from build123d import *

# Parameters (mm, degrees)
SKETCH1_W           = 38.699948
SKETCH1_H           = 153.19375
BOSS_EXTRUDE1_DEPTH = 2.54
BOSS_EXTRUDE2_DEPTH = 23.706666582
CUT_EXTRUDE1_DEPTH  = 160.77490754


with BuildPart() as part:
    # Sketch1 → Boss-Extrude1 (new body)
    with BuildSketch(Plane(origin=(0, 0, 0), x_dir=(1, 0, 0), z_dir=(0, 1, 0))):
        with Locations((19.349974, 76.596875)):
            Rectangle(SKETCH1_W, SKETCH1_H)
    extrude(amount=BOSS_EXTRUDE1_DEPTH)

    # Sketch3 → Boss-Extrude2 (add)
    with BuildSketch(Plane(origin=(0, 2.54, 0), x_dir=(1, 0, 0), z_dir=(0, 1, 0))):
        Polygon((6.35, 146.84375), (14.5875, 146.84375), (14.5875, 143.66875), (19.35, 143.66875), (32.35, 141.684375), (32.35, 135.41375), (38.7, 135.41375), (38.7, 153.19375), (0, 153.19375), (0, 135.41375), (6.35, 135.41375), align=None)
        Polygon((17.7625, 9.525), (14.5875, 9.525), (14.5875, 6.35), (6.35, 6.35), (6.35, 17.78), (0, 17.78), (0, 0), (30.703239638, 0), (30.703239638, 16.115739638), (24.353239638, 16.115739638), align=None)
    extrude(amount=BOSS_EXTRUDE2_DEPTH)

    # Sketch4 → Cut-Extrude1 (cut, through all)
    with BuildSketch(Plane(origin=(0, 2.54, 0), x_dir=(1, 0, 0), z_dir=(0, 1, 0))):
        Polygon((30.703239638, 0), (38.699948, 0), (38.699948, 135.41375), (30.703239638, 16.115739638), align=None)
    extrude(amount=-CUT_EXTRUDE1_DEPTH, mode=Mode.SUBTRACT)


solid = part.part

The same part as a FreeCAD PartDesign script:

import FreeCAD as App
import Part
import Sketcher

V = App.Vector
Q = App.Units.Quantity

doc = App.newDocument("Part")
params = doc.addObject("Spreadsheet::Sheet", "Params")
for row, (alias, value) in enumerate([
    ("sketch1_height", "6.03125 in"),
    ("pad1_length", "0.1 in"),
    ("sketch2_height", "0.7 in"),
    ("sketch2_width", "0.25 in"),
    ("sketch2_height2", "0.45 in"),
    ("sketch2_width2", "0.1875 in"),
    ("sketch2_width3", "0.125 in"),
    ("pad2_length", "23.706667 mm"),
], start=1):
    params.set(f"A{row}", alias)
    params.set(f"B{row}", "=" + value)
    params.setAlias(f"B{row}", alias)

body = doc.addObject("PartDesign::Body", "Body")

sketch1 = body.newObject("Sketcher::SketchObject", "Sketch")
sketch1.AttachmentSupport = (doc.getObject("XZ_Plane"), [""])
sketch1.MapMode = "FlatFace"
sketch1.addGeometry(Part.LineSegment(V(0, -153, 0), V(0, 0, 0)), False)
sketch1.addGeometry(Part.LineSegment(V(0, 0, 0), V(39, 0, 0)), False)
sketch1.addGeometry(Part.LineSegment(V(39, 0, 0), V(39, -153, 0)), False)
sketch1.addGeometry(Part.LineSegment(V(39, -153, 0), V(0, -153, 0)), False)
sketch1.addConstraint(Sketcher.Constraint("Coincident", 0, 2, 1, 1))
sketch1.addConstraint(Sketcher.Constraint("Coincident", 1, 2, 2, 1))
sketch1.addConstraint(Sketcher.Constraint("Coincident", 2, 2, 3, 1))
sketch1.addConstraint(Sketcher.Constraint("Coincident", 3, 2, 0, 1))
sketch1.addConstraint(Sketcher.Constraint("Vertical", 0))
sketch1.addConstraint(Sketcher.Constraint("Horizontal", 1))
sketch1.addConstraint(Sketcher.Constraint("Vertical", 2))
sketch1.addConstraint(Sketcher.Constraint("Horizontal", 3))
sketch1.addConstraint(Sketcher.Constraint("Coincident", 0, 2, -1, 1))
sketch1.addConstraint(Sketcher.Constraint("DistanceY", 0, 1, 0, 2, Q("6.03125 in")))
sketch1.addConstraint(Sketcher.Constraint("DistanceX", 1, 1, 1, 2, Q("38.699948 mm")))
sketch1.setExpression("Constraints[9]", "Params.sketch1_height")
pad1 = body.newObject("PartDesign::Pad", "Pad")
pad1.Profile = sketch1
pad1.setExpression("Length", "Params.pad1_length")
pad1.Reversed = True

sketch2 = body.newObject("Sketcher::SketchObject", "Sketch001")
sketch2.AttachmentSupport = (doc.getObject("XZ_Plane"), [""])
sketch2.MapMode = "FlatFace"
sketch2.AttachmentOffset = App.Placement(V(0, 0, -0.1 * 25.4), App.Rotation())
sketch2.addGeometry(Part.LineSegment(V(6.3, -146.8, 0), V(14.6, -146.8, 0)), False)
sketch2.addGeometry(Part.LineSegment(V(14.6, -146.8, 0), V(14.6, -143.7, 0)), False)
sketch2.addGeometry(Part.LineSegment(V(14.6, -143.7, 0), V(19.4, -143.7, 0)), False)
sketch2.addGeometry(Part.LineSegment(V(19.4, -143.7, 0), V(32.4, -141.7, 0)), False)
sketch2.addGeometry(Part.LineSegment(V(32.4, -141.7, 0), V(32.4, -135.4, 0)), False)
sketch2.addGeometry(Part.LineSegment(V(32.4, -135.4, 0), V(38.7, -135.4, 0)), False)
sketch2.addGeometry(Part.LineSegment(V(38.7, -135.4, 0), V(38.7, -153.2, 0)), False)
sketch2.addGeometry(Part.LineSegment(V(38.7, -153.2, 0), V(0, -153.2, 0)), False)
sketch2.addGeometry(Part.LineSegment(V(0, -153.2, 0), V(0, -135.4, 0)), False)
sketch2.addGeometry(Part.LineSegment(V(0, -135.4, 0), V(6.3, -135.4, 0)), False)
sketch2.addGeometry(Part.LineSegment(V(6.3, -135.4, 0), V(6.3, -146.8, 0)), False)
sketch2.addGeometry(Part.LineSegment(V(17.8, -9.5, 0), V(14.6, -9.5, 0)), False)
sketch2.addGeometry(Part.LineSegment(V(14.6, -9.5, 0), V(14.6, -6.3, 0)), False)
sketch2.addGeometry(Part.LineSegment(V(14.6, -6.3, 0), V(6.3, -6.3, 0)), False)
sketch2.addGeometry(Part.LineSegment(V(6.3, -6.3, 0), V(6.3, -17.8, 0)), False)
sketch2.addGeometry(Part.LineSegment(V(6.3, -17.8, 0), V(0, -17.8, 0)), False)
sketch2.addGeometry(Part.LineSegment(V(0, -17.8, 0), V(0, 0, 0)), False)
sketch2.addGeometry(Part.LineSegment(V(0, 0, 0), V(30.7, 0, 0)), False)
sketch2.addGeometry(Part.LineSegment(V(30.7, 0, 0), V(30.7, -16.1, 0)), False)
sketch2.addGeometry(Part.LineSegment(V(30.7, -16.1, 0), V(24.4, -16.1, 0)), False)
sketch2.addGeometry(Part.LineSegment(V(24.4, -16.1, 0), V(17.8, -9.5, 0)), False)
sketch2.addConstraint(Sketcher.Constraint("Coincident", 0, 2, 1, 1))
sketch2.addConstraint(Sketcher.Constraint("Coincident", 1, 2, 2, 1))
sketch2.addConstraint(Sketcher.Constraint("Coincident", 2, 2, 3, 1))
sketch2.addConstraint(Sketcher.Constraint("Coincident", 3, 2, 4, 1))
sketch2.addConstraint(Sketcher.Constraint("Coincident", 4, 2, 5, 1))
sketch2.addConstraint(Sketcher.Constraint("Coincident", 5, 2, 6, 1))
sketch2.addConstraint(Sketcher.Constraint("Coincident", 6, 2, 7, 1))
sketch2.addConstraint(Sketcher.Constraint("Coincident", 7, 2, 8, 1))
sketch2.addConstraint(Sketcher.Constraint("Coincident", 8, 2, 9, 1))
sketch2.addConstraint(Sketcher.Constraint("Coincident", 9, 2, 10, 1))
sketch2.addConstraint(Sketcher.Constraint("Coincident", 10, 2, 0, 1))
sketch2.addConstraint(Sketcher.Constraint("Coincident", 11, 2, 12, 1))
sketch2.addConstraint(Sketcher.Constraint("Coincident", 12, 2, 13, 1))
sketch2.addConstraint(Sketcher.Constraint("Coincident", 13, 2, 14, 1))
sketch2.addConstraint(Sketcher.Constraint("Coincident", 14, 2, 15, 1))
sketch2.addConstraint(Sketcher.Constraint("Coincident", 15, 2, 16, 1))
sketch2.addConstraint(Sketcher.Constraint("Coincident", 16, 2, 17, 1))
sketch2.addConstraint(Sketcher.Constraint("Coincident", 17, 2, 18, 1))
sketch2.addConstraint(Sketcher.Constraint("Coincident", 18, 2, 19, 1))
sketch2.addConstraint(Sketcher.Constraint("Coincident", 19, 2, 20, 1))
sketch2.addConstraint(Sketcher.Constraint("Coincident", 20, 2, 11, 1))
sketch2.addConstraint(Sketcher.Constraint("Horizontal", 0))
sketch2.addConstraint(Sketcher.Constraint("Vertical", 1))
sketch2.addConstraint(Sketcher.Constraint("Horizontal", 2))
sketch2.addConstraint(Sketcher.Constraint("Vertical", 4))
sketch2.addConstraint(Sketcher.Constraint("Horizontal", 5))
sketch2.addConstraint(Sketcher.Constraint("Vertical", 6))
sketch2.addConstraint(Sketcher.Constraint("Horizontal", 7))
sketch2.addConstraint(Sketcher.Constraint("Vertical", 8))
sketch2.addConstraint(Sketcher.Constraint("Horizontal", 9))
sketch2.addConstraint(Sketcher.Constraint("Vertical", 10))
sketch2.addConstraint(Sketcher.Constraint("Horizontal", 11))
sketch2.addConstraint(Sketcher.Constraint("Vertical", 12))
sketch2.addConstraint(Sketcher.Constraint("Horizontal", 13))
sketch2.addConstraint(Sketcher.Constraint("Vertical", 14))
sketch2.addConstraint(Sketcher.Constraint("Horizontal", 15))
sketch2.addConstraint(Sketcher.Constraint("Vertical", 16))
sketch2.addConstraint(Sketcher.Constraint("Horizontal", 17))
sketch2.addConstraint(Sketcher.Constraint("Vertical", 18))
sketch2.addConstraint(Sketcher.Constraint("Horizontal", 19))
sketch2.addConstraint(Sketcher.Constraint("Coincident", 16, 2, -1, 1))
sketch2.addConstraint(Sketcher.Constraint("PointOnObject", 7, 2, -2))
sketch2.addConstraint(Sketcher.Constraint("Horizontal", 5, 2, 8, 2))
sketch2.addConstraint(Sketcher.Constraint("Vertical", 1, 2, 11, 2))
sketch2.addConstraint(Sketcher.Constraint("Vertical", 10, 2, 13, 2))
sketch2.addConstraint(Sketcher.Constraint("Equal", 5, 9))
sketch2.addConstraint(Sketcher.Constraint("Equal", 15, 19))
sketch2.addConstraint(Sketcher.Constraint("Equal", 11, 1))
sketch2.addConstraint(Sketcher.Constraint("Equal", 1, 12))
sketch2.addConstraint(Sketcher.Constraint("Equal", 10, 14))
sketch2.addConstraint(Sketcher.Constraint("Equal", 8, 16))
sketch2.addConstraint(Sketcher.Constraint("DistanceY", 6, 2, 6, 1, Q("0.7 in")))
sketch2.addConstraint(Sketcher.Constraint("Angle", 20, Q("135 deg")))
sketch2.addConstraint(Sketcher.Constraint("DistanceX", 5, 1, 5, 2, Q("0.25 in")))
sketch2.addConstraint(Sketcher.Constraint("DistanceY", 10, 2, 10, 1, Q("0.45 in")))
sketch2.addConstraint(Sketcher.Constraint("DistanceX", 2, 1, 2, 2, Q("0.1875 in")))
sketch2.addConstraint(Sketcher.Constraint("DistanceX", 11, 2, 11, 1, Q("0.125 in")))
sketch2.addConstraint(Sketcher.Constraint("DistanceY", 0, 2, -1, 1, Q("5.78125 in")))
sketch2.addConstraint(Sketcher.Constraint("DistanceY", 3, 2, -1, 1, Q("5.578125 in")))
sketch2.addConstraint(Sketcher.Constraint("DistanceX", 0, 1, 0, 2, Q("8.2375 mm")))
sketch2.addConstraint(Sketcher.Constraint("DistanceX", 7, 2, 7, 1, Q("38.7 mm")))
sketch2.addConstraint(Sketcher.Constraint("DistanceX", 17, 1, 17, 2, Q("30.70324 mm")))
sketch2.setExpression("Constraints[51]", "Params.sketch2_height")
sketch2.setExpression("Constraints[53]", "Params.sketch2_width")
sketch2.setExpression("Constraints[54]", "Params.sketch2_height2")
sketch2.setExpression("Constraints[55]", "Params.sketch2_width2")
sketch2.setExpression("Constraints[56]", "Params.sketch2_width3")
pad2 = body.newObject("PartDesign::Pad", "Pad001")
pad2.Profile = sketch2
pad2.setExpression("Length", "Params.pad2_length")
pad2.Reversed = True

sketch3 = body.newObject("Sketcher::SketchObject", "Sketch002")
sketch3.AttachmentSupport = (doc.getObject("XZ_Plane"), [""])
sketch3.MapMode = "FlatFace"
sketch3.AttachmentOffset = App.Placement(V(0, 0, -0.1 * 25.4), App.Rotation())
sketch3.addGeometry(Part.LineSegment(V(31, 0, 0), V(39, 0, 0)), False)
sketch3.addGeometry(Part.LineSegment(V(39, 0, 0), V(39, -135, 0)), False)
sketch3.addGeometry(Part.LineSegment(V(39, -135, 0), V(31, -16, 0)), False)
sketch3.addGeometry(Part.LineSegment(V(31, -16, 0), V(31, 0, 0)), False)
sketch3.addConstraint(Sketcher.Constraint("Coincident", 0, 2, 1, 1))
sketch3.addConstraint(Sketcher.Constraint("Coincident", 1, 2, 2, 1))
sketch3.addConstraint(Sketcher.Constraint("Coincident", 2, 2, 3, 1))
sketch3.addConstraint(Sketcher.Constraint("Coincident", 3, 2, 0, 1))
sketch3.addConstraint(Sketcher.Constraint("Horizontal", 0))
sketch3.addConstraint(Sketcher.Constraint("Vertical", 1))
sketch3.addConstraint(Sketcher.Constraint("Vertical", 3))
sketch3.addConstraint(Sketcher.Constraint("PointOnObject", 0, 2, -1))
sketch3.addConstraint(Sketcher.Constraint("DistanceX", 0, 1, 0, 2, Q("7.996708 mm")))
sketch3.addConstraint(Sketcher.Constraint("DistanceY", 1, 2, 1, 1, Q("135.41375 mm")))
sketch3.addConstraint(Sketcher.Constraint("DistanceY", 3, 1, 3, 2, Q("16.11574 mm")))
sketch3.addConstraint(Sketcher.Constraint("DistanceX", -1, 1, 2, 2, Q("30.70324 mm")))
pocket1 = body.newObject("PartDesign::Pocket", "Pocket")
pocket1.Profile = sketch3
pocket1.Type = "ThroughAll"
pocket1.Reversed = True

doc.recompute()
